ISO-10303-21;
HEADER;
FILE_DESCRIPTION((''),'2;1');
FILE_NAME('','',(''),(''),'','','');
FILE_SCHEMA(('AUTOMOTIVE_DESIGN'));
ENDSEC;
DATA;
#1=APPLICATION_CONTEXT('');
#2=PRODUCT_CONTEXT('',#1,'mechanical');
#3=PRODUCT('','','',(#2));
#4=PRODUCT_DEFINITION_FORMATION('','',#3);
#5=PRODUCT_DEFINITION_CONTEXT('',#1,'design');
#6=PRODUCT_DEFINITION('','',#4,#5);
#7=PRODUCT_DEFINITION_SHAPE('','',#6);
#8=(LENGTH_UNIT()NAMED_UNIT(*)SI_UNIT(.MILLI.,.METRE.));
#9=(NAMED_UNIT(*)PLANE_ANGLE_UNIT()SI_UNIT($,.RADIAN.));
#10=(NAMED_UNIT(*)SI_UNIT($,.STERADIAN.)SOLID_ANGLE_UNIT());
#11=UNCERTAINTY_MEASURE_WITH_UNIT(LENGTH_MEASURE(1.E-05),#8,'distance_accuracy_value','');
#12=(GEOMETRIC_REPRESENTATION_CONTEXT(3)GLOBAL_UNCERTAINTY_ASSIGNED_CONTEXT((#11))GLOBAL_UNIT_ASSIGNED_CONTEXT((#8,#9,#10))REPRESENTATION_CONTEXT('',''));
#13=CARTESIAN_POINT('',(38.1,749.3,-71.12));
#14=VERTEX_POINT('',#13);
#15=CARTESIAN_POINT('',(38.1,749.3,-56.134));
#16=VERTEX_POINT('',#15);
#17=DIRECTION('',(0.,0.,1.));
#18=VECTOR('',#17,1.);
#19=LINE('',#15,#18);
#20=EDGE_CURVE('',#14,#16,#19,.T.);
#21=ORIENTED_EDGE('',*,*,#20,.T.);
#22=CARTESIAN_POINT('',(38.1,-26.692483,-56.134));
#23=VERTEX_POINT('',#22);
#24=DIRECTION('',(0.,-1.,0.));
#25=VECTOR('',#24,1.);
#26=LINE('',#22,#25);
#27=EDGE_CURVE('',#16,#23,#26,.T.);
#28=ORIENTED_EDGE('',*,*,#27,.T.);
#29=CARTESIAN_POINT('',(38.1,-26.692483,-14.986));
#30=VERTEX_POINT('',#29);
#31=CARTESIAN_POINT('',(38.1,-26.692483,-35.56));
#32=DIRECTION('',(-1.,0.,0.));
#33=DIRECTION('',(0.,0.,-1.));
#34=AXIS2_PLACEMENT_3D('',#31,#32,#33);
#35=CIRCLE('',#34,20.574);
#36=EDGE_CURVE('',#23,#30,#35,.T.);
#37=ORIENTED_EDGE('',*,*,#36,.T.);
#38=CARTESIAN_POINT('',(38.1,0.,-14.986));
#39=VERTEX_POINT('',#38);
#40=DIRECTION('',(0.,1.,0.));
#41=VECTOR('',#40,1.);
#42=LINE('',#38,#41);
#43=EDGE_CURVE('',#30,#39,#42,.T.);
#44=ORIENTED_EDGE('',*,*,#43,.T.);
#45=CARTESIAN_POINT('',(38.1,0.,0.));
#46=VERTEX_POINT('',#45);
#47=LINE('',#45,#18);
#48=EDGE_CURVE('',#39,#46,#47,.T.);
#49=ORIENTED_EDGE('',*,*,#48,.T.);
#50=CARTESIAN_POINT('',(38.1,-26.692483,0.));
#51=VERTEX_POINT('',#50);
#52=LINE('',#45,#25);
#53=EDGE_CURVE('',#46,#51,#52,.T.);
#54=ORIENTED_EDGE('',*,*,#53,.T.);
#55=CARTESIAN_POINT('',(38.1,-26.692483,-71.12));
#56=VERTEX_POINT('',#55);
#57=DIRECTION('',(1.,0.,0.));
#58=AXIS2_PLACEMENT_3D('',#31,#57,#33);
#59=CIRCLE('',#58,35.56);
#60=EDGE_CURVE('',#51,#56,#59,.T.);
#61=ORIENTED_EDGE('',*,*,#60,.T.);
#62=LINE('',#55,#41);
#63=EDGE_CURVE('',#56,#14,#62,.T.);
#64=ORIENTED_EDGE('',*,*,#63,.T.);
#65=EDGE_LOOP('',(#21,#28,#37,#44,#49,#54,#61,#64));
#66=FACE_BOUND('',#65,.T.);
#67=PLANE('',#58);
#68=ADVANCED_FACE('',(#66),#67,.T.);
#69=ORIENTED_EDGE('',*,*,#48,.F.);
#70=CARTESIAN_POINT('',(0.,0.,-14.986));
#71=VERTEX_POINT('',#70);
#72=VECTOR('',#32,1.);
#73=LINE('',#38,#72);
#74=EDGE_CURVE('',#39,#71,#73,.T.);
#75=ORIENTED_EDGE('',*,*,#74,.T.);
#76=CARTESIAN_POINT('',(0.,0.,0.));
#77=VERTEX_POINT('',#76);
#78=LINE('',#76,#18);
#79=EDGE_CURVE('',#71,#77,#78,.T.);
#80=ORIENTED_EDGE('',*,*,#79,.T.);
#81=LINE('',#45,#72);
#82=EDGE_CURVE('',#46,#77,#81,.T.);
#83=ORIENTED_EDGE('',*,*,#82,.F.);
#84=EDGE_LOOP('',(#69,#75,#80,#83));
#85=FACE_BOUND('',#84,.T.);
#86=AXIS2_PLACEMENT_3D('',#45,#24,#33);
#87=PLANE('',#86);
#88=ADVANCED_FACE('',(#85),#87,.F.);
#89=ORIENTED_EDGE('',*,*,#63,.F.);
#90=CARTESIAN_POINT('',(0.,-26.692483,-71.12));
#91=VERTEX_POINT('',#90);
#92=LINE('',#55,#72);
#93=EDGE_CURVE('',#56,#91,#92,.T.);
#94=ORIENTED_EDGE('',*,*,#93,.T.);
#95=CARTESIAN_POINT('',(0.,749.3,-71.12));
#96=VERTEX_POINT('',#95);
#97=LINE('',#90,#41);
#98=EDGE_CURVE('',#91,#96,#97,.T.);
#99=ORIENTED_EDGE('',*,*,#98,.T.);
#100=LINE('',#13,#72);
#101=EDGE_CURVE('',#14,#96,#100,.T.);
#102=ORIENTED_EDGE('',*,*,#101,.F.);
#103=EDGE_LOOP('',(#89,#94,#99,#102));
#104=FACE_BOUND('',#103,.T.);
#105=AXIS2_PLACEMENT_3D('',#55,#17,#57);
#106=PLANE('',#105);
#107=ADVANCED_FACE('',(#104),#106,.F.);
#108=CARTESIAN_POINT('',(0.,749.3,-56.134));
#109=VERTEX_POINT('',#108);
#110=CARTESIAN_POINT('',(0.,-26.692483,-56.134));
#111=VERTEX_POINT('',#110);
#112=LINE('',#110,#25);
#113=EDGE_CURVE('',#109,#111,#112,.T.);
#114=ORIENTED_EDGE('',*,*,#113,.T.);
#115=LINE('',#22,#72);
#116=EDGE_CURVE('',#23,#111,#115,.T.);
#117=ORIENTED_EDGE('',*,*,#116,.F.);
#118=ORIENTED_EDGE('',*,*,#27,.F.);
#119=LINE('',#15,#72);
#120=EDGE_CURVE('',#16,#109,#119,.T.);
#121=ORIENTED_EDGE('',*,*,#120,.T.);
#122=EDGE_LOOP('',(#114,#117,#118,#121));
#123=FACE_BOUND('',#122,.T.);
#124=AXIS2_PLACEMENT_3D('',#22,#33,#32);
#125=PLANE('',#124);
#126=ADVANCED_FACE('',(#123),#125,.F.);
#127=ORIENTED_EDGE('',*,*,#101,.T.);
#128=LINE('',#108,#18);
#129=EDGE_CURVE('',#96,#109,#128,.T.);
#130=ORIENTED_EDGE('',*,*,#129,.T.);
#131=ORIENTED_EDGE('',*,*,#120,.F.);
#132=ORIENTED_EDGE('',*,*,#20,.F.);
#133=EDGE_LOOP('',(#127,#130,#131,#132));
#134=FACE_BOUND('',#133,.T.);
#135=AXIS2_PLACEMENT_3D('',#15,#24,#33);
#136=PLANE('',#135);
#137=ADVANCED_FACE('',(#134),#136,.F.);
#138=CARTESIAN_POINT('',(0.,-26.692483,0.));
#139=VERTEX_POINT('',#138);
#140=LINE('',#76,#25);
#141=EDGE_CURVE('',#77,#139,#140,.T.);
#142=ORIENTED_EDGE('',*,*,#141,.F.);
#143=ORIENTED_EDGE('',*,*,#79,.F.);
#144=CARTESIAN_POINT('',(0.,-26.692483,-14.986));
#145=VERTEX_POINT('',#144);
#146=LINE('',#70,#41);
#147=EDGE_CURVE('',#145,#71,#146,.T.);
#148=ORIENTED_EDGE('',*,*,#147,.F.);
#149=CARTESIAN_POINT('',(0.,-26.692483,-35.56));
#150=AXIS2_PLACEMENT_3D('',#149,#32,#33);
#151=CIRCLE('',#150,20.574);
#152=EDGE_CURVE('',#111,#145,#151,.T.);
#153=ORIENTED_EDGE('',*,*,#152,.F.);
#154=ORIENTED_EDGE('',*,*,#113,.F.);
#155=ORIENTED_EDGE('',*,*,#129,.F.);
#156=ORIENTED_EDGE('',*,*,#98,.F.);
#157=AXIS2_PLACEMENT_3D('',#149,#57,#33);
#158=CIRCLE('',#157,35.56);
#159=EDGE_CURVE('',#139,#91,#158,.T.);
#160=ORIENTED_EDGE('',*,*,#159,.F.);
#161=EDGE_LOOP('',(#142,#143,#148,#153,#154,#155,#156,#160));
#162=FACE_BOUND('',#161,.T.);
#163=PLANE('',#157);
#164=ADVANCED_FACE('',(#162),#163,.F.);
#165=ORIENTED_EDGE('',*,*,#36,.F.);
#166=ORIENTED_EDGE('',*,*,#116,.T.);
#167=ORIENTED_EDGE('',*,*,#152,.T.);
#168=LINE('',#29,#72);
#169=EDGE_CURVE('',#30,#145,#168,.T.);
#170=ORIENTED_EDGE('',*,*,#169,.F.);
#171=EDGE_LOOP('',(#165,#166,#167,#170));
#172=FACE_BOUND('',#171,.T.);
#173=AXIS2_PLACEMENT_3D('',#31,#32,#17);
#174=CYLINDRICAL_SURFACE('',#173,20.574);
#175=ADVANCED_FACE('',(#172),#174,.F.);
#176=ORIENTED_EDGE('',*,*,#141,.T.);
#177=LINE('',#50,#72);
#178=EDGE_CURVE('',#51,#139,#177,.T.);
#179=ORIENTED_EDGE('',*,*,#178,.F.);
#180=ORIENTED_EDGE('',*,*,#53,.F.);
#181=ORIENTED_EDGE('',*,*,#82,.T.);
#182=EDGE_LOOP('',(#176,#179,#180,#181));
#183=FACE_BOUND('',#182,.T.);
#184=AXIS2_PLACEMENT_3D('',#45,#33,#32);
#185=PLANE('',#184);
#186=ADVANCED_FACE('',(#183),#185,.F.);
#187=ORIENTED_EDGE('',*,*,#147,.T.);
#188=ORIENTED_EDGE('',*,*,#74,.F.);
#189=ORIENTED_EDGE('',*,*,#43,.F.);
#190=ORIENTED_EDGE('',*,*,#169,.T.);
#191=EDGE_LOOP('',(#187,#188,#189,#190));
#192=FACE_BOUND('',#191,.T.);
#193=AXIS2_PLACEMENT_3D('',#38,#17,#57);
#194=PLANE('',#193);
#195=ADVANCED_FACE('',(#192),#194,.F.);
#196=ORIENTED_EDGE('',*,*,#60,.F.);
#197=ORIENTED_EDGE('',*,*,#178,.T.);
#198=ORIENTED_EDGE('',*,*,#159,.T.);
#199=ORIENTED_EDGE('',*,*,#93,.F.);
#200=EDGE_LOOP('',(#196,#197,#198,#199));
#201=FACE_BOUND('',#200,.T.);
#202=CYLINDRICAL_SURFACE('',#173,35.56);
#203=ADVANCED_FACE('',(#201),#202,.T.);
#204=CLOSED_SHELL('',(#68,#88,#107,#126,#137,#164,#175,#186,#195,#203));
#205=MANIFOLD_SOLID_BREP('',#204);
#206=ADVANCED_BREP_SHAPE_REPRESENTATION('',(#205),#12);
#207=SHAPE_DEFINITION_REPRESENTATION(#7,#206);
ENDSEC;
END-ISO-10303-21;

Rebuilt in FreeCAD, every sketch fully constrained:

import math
import FreeCAD as App
import Part
import Sketcher
Q = App.Units.Quantity

doc = App.newDocument("Part")
body = doc.addObject("PartDesign::Body", "Body")

# Sketch on YZ plane
sketch1 = body.newObject("Sketcher::SketchObject", "Sketch")
sketch1.AttachmentSupport = (doc.getObject("YZ_Plane"), [""])
sketch1.MapMode = "FlatFace"
sketch1.addGeometry(Part.LineSegment(App.Vector(0, 0, 0), App.Vector(-27, 0, 0)), False)
sketch1.addGeometry(Part.ArcOfCircle(Part.Circle(App.Vector(-27, -36, 0), App.Vector(0, 0, 1), 36), math.radians(90), math.radians(270)), False)
sketch1.addGeometry(Part.LineSegment(App.Vector(-27, -71, 0), App.Vector(749, -71, 0)), False)
sketch1.addGeometry(Part.LineSegment(App.Vector(749, -71, 0), App.Vector(749, -56, 0)), False)
sketch1.addGeometry(Part.LineSegment(App.Vector(749, -56, 0), App.Vector(-27, -56, 0)), False)
sketch1.addGeometry(Part.ArcOfCircle(Part.Circle(App.Vector(-27, -36, 0), App.Vector(0, 0, 1), 21), math.radians(90), math.radians(270)), False)
sketch1.addGeometry(Part.LineSegment(App.Vector(-27, -15, 0), App.Vector(0, -15, 0)), False)
sketch1.addGeometry(Part.LineSegment(App.Vector(0, -15, 0), App.Vector(0, 0, 0)), False)
sketch1.addConstraint(Sketcher.Constraint("Tangent", 0, 2, 1, 1))
sketch1.addConstraint(Sketcher.Constraint("Tangent", 1, 2, 2, 1))
sketch1.addConstraint(Sketcher.Constraint("Coincident", 2, 2, 3, 1))
sketch1.addConstraint(Sketcher.Constraint("Coincident", 3, 2, 4, 1))
sketch1.addConstraint(Sketcher.Constraint("Tangent", 4, 2, 5, 2))
sketch1.addConstraint(Sketcher.Constraint("Tangent", 5, 1, 6, 1))
sketch1.addConstraint(Sketcher.Constraint("Coincident", 6, 2, 7, 1))
sketch1.addConstraint(Sketcher.Constraint("Coincident", 7, 2, 0, 1))
sketch1.addConstraint(Sketcher.Constraint("Horizontal", 0))
sketch1.addConstraint(Sketcher.Constraint("Horizontal", 2))
sketch1.addConstraint(Sketcher.Constraint("Vertical", 3))
sketch1.addConstraint(Sketcher.Constraint("Horizontal", 4))
sketch1.addConstraint(Sketcher.Constraint("Horizontal", 6))
sketch1.addConstraint(Sketcher.Constraint("Vertical", 7))
sketch1.addConstraint(Sketcher.Constraint("Coincident", 7, 2, -1, 1))
sketch1.addConstraint(Sketcher.Constraint("Coincident", 5, 3, 1, 3))
sketch1.addConstraint(Sketcher.Constraint("Radius", 1, Q("1.4 in")))
sketch1.addConstraint(Sketcher.Constraint("Radius", 5, Q("0.81 in")))
sketch1.addConstraint(Sketcher.Constraint("DistanceX", -1, 1, 2, 2, Q("29.5 in")))
sketch1.addConstraint(Sketcher.Constraint("DistanceX", 0, 2, 0, 1, 26.692483))
pad1 = body.newObject("PartDesign::Pad", "Pad")
pad1.Profile = sketch1
pad1.Length = Q("1.5 in")

doc.recompute()
